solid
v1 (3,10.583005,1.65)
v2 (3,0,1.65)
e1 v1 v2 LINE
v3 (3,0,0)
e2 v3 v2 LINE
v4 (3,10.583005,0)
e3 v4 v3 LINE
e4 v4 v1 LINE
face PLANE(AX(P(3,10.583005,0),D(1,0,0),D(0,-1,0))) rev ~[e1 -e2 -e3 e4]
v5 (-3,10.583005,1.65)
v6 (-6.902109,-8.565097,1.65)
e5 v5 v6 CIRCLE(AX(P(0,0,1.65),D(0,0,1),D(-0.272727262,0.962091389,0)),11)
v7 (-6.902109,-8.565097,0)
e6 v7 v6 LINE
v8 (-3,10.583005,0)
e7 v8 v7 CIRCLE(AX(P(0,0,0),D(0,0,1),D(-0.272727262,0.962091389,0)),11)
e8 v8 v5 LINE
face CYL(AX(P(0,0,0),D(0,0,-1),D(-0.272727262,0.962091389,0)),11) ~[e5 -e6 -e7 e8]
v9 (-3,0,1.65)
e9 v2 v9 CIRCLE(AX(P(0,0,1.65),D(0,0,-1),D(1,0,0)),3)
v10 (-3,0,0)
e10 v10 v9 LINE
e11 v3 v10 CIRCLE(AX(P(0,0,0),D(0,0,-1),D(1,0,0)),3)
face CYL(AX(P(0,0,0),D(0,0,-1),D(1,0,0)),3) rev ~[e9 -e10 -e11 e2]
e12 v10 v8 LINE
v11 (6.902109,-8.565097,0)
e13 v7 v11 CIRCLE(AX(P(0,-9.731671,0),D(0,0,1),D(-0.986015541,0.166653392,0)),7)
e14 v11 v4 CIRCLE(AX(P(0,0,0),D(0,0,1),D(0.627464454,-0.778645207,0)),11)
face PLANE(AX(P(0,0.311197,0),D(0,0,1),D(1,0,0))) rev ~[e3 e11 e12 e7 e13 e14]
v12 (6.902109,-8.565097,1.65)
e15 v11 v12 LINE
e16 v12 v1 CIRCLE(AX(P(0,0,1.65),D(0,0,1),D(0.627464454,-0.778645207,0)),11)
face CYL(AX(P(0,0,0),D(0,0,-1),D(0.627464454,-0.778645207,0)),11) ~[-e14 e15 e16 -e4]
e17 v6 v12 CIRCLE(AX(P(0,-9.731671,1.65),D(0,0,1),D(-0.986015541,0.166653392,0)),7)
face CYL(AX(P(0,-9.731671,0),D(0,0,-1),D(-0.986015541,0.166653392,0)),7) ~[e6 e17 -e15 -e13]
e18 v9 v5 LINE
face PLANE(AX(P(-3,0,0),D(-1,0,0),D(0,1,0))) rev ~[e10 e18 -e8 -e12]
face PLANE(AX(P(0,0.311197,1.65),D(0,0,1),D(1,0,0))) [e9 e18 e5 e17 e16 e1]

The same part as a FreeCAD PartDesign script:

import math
import FreeCAD as App
import Part
import Sketcher
Q = App.Units.Quantity

doc = App.newDocument("Part")
params = doc.addObject("Spreadsheet::Sheet", "Params")
for row, (alias, value) in enumerate([
    ("sketch1_radius", "11 mm"),
    ("sketch1_radius2", "7 mm"),
    ("sketch1_radius3", "3 mm"),
    ("pad1_length", "1.65 mm"),
], start=1):
    params.set(f"A{row}", alias)
    params.set(f"B{row}", "=" + value)
    params.setAlias(f"B{row}", alias)

body = doc.addObject("PartDesign::Body", "Body")

sketch1 = body.newObject("Sketcher::SketchObject", "Sketch")
sketch1.AttachmentSupport = (doc.getObject("XY_Plane"), [""])
sketch1.MapMode = "FlatFace"
sketch1.addGeometry(Part.LineSegment(App.Vector(-3, 0, 0), App.Vector(-3, 10.583005, 0)), False)
sketch1.addGeometry(Part.ArcOfCircle(Part.Circle(App.Vector(0, 0, 0), App.Vector(0, 0, 1), 11), math.radians(105.82662), math.radians(231.136699)), False)
sketch1.addGeometry(Part.ArcOfCircle(Part.Circle(App.Vector(0, -9.731671, 0), App.Vector(0, 0, 1), 7), math.radians(170.406703), math.radians(369.593297)), False)
sketch1.addGeometry(Part.ArcOfCircle(Part.Circle(App.Vector(0, 0, 0), App.Vector(0, 0, 1), 11), math.radians(-51.136699), math.radians(74.17338)), False)
sketch1.addGeometry(Part.LineSegment(App.Vector(3, 10.583005, 0), App.Vector(3, 0, 0)), False)
sketch1.addGeometry(Part.ArcOfCircle(Part.Circle(App.Vector(0, 0, 0), App.Vector(0, 0, 1), 3), math.radians(180), math.radians(360)), False)
sketch1.addConstraint(Sketcher.Constraint("Coincident", 0, 2, 1, 1))
sketch1.addConstraint(Sketcher.Constraint("Coincident", 1, 2, 2, 1))
sketch1.addConstraint(Sketcher.Constraint("Coincident", 2, 2, 3, 1))
sketch1.addConstraint(Sketcher.Constraint("Coincident", 3, 2, 4, 1))
sketch1.addConstraint(Sketcher.Constraint("Tangent", 4, 2, 5, 2))
sketch1.addConstraint(Sketcher.Constraint("Tangent", 5, 1, 0, 1))
sketch1.addConstraint(Sketcher.Constraint("Vertical", 0))
sketch1.addConstraint(Sketcher.Constraint("Vertical", 4))
sketch1.addConstraint(Sketcher.Constraint("Coincident", 1, 3, -1, 1))
sketch1.addConstraint(Sketcher.Constraint("Coincident", 3, 3, -1, 1))
sketch1.addConstraint(Sketcher.Constraint("Coincident", 5, 3, -1, 1))
sketch1.addConstraint(Sketcher.Constraint("Equal", 1, 3))
sketch1.addConstraint(Sketcher.Constraint("PointOnObject", 2, 3, -2))
sketch1.addConstraint(Sketcher.Constraint("Radius", 1, Q("11 mm")))
sketch1.addConstraint(Sketcher.Constraint("Radius", 2, Q("7 mm")))
sketch1.addConstraint(Sketcher.Constraint("Radius", 5, Q("3 mm")))
sketch1.addConstraint(Sketcher.Constraint("DistanceY", 2, 2, 3, 2, Q("19.148102 mm")))
sketch1.setExpression("Constraints[13]", "Params.sketch1_radius")
sketch1.setExpression("Constraints[14]", "Params.sketch1_radius2")
sketch1.setExpression("Constraints[15]", "Params.sketch1_radius3")
pad1 = body.newObject("PartDesign::Pad", "Pad")
pad1.Profile = sketch1
pad1.setExpression("Length", "Params.pad1_length")

doc.recompute()
